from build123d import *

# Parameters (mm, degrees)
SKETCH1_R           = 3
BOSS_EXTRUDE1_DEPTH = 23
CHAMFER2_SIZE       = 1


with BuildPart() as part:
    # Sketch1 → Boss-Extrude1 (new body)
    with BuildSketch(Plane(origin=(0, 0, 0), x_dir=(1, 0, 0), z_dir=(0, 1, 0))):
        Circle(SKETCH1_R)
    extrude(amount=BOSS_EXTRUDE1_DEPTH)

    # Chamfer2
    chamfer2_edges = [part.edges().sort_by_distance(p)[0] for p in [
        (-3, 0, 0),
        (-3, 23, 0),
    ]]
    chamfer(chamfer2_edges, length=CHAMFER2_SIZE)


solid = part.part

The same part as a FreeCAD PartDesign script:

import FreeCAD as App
import Part
import Sketcher
from FreeCAD import Vector
Q = App.Units.Quantity


def edges_at(feature, points):
    """Names of the edges that pass closest to the given points."""
    edges = feature.Shape.Edges
    near = lambda p: min(range(len(edges)), key=lambda i: edges[i].distToShape(Part.Vertex(*p))[0])
    return sorted({f"Edge{near(p) + 1}" for p in points})

doc = App.newDocument("Part")
body = doc.addObject("PartDesign::Body", "Body")

# Sketch on XZ plane
sketch1 = body.newObject("Sketcher::SketchObject", "Sketch")
sketch1.AttachmentSupport = (doc.getObject("XZ_Plane"), [""])
sketch1.MapMode = "FlatFace"
sketch1.addGeometry(Part.Circle(Vector(0, 0, 0), Vector(0, 0, 1), 3), False)
sketch1.addConstraint([
    Sketcher.Constraint("Coincident", 0, 3, -1, 1),
    Sketcher.Constraint("Diameter", 0, Q("6 mm")),
])
pad1 = body.newObject("PartDesign::Pad", "Pad")
pad1.Profile = sketch1
pad1.Length = 23
pad1.Reversed = True
doc.recompute()

chamfer = body.newObject("PartDesign::Chamfer", "Chamfer")
chamfer.Base = (pad1, edges_at(pad1, [(-3, 0, 0), (-3, 23, 0)]))
chamfer.Size = 1

doc.recompute()
